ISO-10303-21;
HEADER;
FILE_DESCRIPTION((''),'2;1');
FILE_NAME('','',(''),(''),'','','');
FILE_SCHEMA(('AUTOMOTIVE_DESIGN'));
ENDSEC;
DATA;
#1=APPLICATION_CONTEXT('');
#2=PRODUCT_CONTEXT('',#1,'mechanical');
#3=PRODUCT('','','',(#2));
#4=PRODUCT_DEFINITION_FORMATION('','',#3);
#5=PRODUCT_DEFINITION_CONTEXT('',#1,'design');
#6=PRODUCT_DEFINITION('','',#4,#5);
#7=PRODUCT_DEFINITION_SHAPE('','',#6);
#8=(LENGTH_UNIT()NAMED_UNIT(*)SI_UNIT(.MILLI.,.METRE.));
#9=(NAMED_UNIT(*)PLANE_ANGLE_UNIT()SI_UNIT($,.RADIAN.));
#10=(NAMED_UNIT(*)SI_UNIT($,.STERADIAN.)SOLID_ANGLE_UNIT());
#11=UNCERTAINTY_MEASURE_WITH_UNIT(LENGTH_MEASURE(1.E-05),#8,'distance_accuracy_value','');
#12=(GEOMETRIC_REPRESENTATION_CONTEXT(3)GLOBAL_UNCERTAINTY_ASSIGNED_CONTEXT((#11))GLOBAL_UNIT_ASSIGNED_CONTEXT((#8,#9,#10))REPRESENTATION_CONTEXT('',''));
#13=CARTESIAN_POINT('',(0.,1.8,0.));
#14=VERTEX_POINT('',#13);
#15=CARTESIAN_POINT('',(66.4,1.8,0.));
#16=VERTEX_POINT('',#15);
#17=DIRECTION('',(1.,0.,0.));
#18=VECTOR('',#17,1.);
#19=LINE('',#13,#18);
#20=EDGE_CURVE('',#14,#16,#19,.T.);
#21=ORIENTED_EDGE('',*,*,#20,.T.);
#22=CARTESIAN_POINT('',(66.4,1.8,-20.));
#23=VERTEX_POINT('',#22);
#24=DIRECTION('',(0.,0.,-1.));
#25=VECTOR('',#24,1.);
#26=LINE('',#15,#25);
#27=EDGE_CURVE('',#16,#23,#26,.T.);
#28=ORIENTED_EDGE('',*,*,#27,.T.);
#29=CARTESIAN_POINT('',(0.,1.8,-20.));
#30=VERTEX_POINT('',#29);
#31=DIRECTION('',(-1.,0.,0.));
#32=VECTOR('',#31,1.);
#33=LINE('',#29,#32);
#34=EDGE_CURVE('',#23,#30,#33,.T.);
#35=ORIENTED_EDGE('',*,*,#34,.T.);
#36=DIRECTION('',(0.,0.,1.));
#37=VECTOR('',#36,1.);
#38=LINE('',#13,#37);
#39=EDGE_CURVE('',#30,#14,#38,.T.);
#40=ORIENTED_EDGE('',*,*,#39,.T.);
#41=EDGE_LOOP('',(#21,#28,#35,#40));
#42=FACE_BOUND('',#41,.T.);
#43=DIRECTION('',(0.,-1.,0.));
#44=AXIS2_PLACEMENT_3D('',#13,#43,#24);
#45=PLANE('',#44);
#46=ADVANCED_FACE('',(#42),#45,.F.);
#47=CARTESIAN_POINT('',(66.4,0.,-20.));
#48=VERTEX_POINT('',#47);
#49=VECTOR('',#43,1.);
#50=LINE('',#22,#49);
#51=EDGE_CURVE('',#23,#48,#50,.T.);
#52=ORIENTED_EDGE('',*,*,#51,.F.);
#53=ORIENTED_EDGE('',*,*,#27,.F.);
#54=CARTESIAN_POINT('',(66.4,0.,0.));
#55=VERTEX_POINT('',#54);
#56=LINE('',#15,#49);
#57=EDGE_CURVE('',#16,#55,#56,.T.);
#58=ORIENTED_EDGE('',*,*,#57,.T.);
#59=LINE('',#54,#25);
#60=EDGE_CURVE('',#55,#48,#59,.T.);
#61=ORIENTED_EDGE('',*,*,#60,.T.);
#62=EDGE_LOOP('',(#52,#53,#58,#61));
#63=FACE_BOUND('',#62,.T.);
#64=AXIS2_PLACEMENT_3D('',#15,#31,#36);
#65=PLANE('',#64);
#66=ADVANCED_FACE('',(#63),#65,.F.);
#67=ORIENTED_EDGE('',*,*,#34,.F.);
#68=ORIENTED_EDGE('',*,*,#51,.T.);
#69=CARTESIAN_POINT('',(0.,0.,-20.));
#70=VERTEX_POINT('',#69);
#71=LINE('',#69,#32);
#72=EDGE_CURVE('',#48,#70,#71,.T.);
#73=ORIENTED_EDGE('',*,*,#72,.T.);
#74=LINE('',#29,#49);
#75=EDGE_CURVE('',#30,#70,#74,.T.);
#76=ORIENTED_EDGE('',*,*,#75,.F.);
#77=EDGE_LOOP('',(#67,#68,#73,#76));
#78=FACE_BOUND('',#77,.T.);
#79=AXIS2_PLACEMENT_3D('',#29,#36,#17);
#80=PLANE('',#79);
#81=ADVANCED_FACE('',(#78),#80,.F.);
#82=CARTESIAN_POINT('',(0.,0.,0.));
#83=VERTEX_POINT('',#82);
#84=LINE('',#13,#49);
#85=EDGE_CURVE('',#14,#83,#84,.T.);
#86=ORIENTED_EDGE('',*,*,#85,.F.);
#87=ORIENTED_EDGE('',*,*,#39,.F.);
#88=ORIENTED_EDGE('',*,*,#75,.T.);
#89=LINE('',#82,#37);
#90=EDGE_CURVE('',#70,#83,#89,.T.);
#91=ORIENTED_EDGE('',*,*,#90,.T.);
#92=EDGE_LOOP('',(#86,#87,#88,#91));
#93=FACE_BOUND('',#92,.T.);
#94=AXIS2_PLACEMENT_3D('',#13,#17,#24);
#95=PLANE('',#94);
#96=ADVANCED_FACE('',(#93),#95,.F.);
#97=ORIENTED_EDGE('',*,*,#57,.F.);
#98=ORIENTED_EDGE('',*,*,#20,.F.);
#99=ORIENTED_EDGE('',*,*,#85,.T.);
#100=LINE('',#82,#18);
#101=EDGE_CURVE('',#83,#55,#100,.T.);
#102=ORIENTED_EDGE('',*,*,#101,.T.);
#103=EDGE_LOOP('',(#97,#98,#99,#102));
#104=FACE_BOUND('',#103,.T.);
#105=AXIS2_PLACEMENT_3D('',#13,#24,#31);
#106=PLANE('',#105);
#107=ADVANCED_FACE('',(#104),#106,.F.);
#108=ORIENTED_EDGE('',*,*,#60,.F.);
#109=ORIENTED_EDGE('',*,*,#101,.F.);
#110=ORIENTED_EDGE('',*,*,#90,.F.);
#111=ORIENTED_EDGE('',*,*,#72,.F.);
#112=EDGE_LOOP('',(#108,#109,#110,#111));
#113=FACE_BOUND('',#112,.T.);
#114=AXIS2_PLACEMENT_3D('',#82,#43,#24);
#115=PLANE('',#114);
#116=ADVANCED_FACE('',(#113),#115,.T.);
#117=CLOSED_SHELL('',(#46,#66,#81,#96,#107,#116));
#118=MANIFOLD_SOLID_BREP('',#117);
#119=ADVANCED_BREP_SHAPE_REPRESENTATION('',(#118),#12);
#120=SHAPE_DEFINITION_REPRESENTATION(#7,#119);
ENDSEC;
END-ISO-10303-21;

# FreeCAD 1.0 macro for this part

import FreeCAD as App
import Part
import Sketcher

V = App.Vector


def add_polygon(sketch, points):
    """Adds a closed chain of lines whose ends are joined by coincident constraints."""
    first, n = sketch.GeometryCount, len(points)
    for a, b in zip(points, points[1:] + points[:1]):
        sketch.addGeometry(Part.LineSegment(App.Vector(*a, 0), App.Vector(*b, 0)), False)
    for i in range(n):
        sketch.addConstraint(Sketcher.Constraint("Coincident", first + i, 2, first + (i + 1) % n, 1))

doc = App.newDocument("Part")
params = doc.addObject("Spreadsheet::Sheet", "Params")
for row, (alias, value) in enumerate([
    ("sketch1_height", "20 mm"),
    ("sketch1_width", "66.4 mm"),
    ("pad1_length", "1.8 mm"),
], start=1):
    params.set(f"A{row}", alias)
    params.set(f"B{row}", "=" + value)
    params.setAlias(f"B{row}", alias)

body = doc.addObject("PartDesign::Body", "Body")

# Sketch on XZ plane
sketch1 = doc.addObject("Sketcher::SketchObject", "Sketch")
body.addObject(sketch1)
sketch1.AttachmentSupport = (doc.XZ_Plane, [""])
sketch1.MapMode = "FlatFace"
add_polygon(sketch1, [(0, -20), (0, 0), (66, 0), (66, -20)])  # lines 0-3
sketch1.addConstraint([
    Sketcher.Constraint("Vertical", 0),
    Sketcher.Constraint("Horizontal", 1),
    Sketcher.Constraint("Vertical", 2),
    Sketcher.Constraint("Horizontal", 3),
    Sketcher.Constraint("Coincident", 0, 2, -1, 1),
    Sketcher.Constraint("DistanceY", 0, 1, 0, 2, 20.0),
    Sketcher.Constraint("DistanceX", 1, 1, 1, 2, 66.4),
])
sketch1.setExpression("Constraints[9]", "Params.sketch1_height")
sketch1.setExpression("Constraints[10]", "Params.sketch1_width")
pad1 = doc.addObject("PartDesign::Pad", "Pad")
body.addObject(pad1)
pad1.Profile = sketch1
pad1.setExpression("Length", "Params.pad1_length")
pad1.Reversed = True

doc.recompute()
